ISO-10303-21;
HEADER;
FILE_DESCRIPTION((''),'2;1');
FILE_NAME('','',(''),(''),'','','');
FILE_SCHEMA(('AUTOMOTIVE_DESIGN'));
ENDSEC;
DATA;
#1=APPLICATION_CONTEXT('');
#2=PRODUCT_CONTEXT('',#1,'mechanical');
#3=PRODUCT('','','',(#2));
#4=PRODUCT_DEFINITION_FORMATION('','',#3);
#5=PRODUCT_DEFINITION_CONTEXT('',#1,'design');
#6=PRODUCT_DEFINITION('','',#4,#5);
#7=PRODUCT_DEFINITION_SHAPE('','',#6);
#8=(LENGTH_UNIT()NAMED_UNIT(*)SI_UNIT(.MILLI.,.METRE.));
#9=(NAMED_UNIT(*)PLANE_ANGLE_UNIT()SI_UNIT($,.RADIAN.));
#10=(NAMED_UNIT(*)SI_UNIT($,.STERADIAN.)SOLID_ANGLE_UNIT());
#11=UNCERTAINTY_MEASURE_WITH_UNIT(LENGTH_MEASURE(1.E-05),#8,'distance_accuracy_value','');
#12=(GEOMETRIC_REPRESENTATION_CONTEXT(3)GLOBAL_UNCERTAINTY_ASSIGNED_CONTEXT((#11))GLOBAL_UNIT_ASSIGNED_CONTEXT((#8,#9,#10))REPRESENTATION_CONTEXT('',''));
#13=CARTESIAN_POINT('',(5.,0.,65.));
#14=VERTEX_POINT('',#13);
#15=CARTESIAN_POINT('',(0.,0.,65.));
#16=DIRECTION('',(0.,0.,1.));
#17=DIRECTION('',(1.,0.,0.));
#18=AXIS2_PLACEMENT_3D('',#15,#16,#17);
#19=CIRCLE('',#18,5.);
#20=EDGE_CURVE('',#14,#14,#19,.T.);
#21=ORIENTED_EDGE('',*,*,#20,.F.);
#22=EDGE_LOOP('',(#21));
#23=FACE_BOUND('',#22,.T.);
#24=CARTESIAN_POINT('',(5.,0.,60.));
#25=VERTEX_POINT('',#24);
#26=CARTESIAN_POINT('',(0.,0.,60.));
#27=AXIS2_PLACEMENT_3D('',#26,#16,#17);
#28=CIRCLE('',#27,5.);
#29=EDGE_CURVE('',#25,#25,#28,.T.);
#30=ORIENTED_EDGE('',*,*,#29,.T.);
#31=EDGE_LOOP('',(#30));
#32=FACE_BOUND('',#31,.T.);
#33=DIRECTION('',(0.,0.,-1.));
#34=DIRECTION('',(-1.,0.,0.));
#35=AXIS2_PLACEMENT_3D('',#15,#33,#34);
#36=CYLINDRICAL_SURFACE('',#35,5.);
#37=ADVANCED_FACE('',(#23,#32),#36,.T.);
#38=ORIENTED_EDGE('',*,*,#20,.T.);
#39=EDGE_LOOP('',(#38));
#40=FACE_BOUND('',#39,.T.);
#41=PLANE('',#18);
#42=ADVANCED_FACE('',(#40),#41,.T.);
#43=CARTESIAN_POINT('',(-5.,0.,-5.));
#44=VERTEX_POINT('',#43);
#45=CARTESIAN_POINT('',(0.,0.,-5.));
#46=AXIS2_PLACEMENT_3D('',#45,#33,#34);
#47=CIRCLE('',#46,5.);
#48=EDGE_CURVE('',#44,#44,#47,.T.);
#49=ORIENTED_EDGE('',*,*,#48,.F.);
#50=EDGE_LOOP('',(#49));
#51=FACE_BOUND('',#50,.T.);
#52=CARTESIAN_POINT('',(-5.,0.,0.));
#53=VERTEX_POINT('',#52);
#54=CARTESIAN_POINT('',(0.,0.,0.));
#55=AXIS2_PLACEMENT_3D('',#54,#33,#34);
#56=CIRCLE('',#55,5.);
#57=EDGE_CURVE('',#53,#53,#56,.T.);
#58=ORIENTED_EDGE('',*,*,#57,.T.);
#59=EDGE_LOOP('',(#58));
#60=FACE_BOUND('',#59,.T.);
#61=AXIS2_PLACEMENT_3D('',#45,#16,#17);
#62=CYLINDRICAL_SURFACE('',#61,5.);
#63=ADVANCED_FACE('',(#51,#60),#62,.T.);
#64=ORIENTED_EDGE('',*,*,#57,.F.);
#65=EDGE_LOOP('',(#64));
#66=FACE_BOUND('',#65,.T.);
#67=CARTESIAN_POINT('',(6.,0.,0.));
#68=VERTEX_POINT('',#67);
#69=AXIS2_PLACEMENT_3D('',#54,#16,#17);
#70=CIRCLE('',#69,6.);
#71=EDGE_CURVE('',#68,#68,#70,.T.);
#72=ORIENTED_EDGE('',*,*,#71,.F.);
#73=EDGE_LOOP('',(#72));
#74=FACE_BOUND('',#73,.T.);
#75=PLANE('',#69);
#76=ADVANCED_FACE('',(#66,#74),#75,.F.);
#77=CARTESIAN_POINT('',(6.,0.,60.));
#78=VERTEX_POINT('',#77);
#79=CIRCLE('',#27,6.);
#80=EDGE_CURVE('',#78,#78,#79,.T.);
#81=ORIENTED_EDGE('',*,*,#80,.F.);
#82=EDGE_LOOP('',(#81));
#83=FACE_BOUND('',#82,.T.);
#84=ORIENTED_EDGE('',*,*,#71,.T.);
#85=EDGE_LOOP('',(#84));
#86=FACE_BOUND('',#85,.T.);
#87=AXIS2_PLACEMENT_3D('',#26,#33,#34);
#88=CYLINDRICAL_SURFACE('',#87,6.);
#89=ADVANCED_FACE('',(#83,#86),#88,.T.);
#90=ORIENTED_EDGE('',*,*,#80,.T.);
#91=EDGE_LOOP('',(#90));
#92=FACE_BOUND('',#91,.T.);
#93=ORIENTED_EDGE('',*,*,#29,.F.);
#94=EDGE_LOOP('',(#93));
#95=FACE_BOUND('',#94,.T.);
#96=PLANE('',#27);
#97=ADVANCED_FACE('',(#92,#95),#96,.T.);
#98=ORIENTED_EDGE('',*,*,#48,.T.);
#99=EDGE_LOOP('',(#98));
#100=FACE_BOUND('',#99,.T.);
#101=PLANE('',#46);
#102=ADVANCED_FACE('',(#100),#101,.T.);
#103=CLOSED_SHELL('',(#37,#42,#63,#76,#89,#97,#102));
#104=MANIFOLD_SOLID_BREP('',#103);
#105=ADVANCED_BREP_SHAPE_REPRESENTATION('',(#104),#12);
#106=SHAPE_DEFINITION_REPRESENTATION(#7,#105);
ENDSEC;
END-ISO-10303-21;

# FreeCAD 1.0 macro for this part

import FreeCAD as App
import Part
import Sketcher

V = App.Vector
Q = App.Units.Quantity

doc = App.newDocument("Part")
body = doc.addObject("PartDesign::Body", "Body")

sketch1 = body.newObject("Sketcher::SketchObject", "Sketch")
sketch1.AttachmentSupport = (doc.getObject("XY_Plane"), [""])
sketch1.MapMode = "FlatFace"
sketch1.addGeometry(Part.Circle(V(0, 0, 0), V(0, 0, 1), 6), False)
sketch1.addConstraint([
    Sketcher.Constraint("Coincident", 0, 3, -1, 1),
    Sketcher.Constraint("Diameter", 0, Q("12 mm")),
])
pad1 = body.newObject("PartDesign::Pad", "Pad")
pad1.Profile = sketch1
pad1.Length = 60

sketch2 = body.newObject("Sketcher::SketchObject", "Sketch001")
sketch2.AttachmentSupport = (doc.getObject("XY_Plane"), [""])
sketch2.MapMode = "FlatFace"
sketch2.AttachmentOffset = App.Placement(V(0, 0, 60), App.Rotation())
sketch2.addGeometry(Part.Circle(V(0, 0, 0), V(0, 0, 1), 5), False)
sketch2.addConstraint([
    Sketcher.Constraint("Coincident", 0, 3, -1, 1),
    Sketcher.Constraint("Diameter", 0, Q("10 mm")),
])
pad2 = body.newObject("PartDesign::Pad", "Pad001")
pad2.Profile = sketch2
pad2.Length = 5

sketch3 = body.newObject("Sketcher::SketchObject", "Sketch002")
sketch3.AttachmentSupport = (doc.getObject("XY_Plane"), [""])
sketch3.MapMode = "FlatFace"
sketch3.addGeometry(Part.Circle(V(0, 0, 0), V(0, 0, 1), 5), False)
sketch3.addConstraint([
    Sketcher.Constraint("Coincident", 0, 3, -1, 1),
    Sketcher.Constraint("Diameter", 0, Q("10 mm")),
])
pad3 = body.newObject("PartDesign::Pad", "Pad002")
pad3.Profile = sketch3
pad3.Length = 5
pad3.Reversed = True

doc.recompute()
